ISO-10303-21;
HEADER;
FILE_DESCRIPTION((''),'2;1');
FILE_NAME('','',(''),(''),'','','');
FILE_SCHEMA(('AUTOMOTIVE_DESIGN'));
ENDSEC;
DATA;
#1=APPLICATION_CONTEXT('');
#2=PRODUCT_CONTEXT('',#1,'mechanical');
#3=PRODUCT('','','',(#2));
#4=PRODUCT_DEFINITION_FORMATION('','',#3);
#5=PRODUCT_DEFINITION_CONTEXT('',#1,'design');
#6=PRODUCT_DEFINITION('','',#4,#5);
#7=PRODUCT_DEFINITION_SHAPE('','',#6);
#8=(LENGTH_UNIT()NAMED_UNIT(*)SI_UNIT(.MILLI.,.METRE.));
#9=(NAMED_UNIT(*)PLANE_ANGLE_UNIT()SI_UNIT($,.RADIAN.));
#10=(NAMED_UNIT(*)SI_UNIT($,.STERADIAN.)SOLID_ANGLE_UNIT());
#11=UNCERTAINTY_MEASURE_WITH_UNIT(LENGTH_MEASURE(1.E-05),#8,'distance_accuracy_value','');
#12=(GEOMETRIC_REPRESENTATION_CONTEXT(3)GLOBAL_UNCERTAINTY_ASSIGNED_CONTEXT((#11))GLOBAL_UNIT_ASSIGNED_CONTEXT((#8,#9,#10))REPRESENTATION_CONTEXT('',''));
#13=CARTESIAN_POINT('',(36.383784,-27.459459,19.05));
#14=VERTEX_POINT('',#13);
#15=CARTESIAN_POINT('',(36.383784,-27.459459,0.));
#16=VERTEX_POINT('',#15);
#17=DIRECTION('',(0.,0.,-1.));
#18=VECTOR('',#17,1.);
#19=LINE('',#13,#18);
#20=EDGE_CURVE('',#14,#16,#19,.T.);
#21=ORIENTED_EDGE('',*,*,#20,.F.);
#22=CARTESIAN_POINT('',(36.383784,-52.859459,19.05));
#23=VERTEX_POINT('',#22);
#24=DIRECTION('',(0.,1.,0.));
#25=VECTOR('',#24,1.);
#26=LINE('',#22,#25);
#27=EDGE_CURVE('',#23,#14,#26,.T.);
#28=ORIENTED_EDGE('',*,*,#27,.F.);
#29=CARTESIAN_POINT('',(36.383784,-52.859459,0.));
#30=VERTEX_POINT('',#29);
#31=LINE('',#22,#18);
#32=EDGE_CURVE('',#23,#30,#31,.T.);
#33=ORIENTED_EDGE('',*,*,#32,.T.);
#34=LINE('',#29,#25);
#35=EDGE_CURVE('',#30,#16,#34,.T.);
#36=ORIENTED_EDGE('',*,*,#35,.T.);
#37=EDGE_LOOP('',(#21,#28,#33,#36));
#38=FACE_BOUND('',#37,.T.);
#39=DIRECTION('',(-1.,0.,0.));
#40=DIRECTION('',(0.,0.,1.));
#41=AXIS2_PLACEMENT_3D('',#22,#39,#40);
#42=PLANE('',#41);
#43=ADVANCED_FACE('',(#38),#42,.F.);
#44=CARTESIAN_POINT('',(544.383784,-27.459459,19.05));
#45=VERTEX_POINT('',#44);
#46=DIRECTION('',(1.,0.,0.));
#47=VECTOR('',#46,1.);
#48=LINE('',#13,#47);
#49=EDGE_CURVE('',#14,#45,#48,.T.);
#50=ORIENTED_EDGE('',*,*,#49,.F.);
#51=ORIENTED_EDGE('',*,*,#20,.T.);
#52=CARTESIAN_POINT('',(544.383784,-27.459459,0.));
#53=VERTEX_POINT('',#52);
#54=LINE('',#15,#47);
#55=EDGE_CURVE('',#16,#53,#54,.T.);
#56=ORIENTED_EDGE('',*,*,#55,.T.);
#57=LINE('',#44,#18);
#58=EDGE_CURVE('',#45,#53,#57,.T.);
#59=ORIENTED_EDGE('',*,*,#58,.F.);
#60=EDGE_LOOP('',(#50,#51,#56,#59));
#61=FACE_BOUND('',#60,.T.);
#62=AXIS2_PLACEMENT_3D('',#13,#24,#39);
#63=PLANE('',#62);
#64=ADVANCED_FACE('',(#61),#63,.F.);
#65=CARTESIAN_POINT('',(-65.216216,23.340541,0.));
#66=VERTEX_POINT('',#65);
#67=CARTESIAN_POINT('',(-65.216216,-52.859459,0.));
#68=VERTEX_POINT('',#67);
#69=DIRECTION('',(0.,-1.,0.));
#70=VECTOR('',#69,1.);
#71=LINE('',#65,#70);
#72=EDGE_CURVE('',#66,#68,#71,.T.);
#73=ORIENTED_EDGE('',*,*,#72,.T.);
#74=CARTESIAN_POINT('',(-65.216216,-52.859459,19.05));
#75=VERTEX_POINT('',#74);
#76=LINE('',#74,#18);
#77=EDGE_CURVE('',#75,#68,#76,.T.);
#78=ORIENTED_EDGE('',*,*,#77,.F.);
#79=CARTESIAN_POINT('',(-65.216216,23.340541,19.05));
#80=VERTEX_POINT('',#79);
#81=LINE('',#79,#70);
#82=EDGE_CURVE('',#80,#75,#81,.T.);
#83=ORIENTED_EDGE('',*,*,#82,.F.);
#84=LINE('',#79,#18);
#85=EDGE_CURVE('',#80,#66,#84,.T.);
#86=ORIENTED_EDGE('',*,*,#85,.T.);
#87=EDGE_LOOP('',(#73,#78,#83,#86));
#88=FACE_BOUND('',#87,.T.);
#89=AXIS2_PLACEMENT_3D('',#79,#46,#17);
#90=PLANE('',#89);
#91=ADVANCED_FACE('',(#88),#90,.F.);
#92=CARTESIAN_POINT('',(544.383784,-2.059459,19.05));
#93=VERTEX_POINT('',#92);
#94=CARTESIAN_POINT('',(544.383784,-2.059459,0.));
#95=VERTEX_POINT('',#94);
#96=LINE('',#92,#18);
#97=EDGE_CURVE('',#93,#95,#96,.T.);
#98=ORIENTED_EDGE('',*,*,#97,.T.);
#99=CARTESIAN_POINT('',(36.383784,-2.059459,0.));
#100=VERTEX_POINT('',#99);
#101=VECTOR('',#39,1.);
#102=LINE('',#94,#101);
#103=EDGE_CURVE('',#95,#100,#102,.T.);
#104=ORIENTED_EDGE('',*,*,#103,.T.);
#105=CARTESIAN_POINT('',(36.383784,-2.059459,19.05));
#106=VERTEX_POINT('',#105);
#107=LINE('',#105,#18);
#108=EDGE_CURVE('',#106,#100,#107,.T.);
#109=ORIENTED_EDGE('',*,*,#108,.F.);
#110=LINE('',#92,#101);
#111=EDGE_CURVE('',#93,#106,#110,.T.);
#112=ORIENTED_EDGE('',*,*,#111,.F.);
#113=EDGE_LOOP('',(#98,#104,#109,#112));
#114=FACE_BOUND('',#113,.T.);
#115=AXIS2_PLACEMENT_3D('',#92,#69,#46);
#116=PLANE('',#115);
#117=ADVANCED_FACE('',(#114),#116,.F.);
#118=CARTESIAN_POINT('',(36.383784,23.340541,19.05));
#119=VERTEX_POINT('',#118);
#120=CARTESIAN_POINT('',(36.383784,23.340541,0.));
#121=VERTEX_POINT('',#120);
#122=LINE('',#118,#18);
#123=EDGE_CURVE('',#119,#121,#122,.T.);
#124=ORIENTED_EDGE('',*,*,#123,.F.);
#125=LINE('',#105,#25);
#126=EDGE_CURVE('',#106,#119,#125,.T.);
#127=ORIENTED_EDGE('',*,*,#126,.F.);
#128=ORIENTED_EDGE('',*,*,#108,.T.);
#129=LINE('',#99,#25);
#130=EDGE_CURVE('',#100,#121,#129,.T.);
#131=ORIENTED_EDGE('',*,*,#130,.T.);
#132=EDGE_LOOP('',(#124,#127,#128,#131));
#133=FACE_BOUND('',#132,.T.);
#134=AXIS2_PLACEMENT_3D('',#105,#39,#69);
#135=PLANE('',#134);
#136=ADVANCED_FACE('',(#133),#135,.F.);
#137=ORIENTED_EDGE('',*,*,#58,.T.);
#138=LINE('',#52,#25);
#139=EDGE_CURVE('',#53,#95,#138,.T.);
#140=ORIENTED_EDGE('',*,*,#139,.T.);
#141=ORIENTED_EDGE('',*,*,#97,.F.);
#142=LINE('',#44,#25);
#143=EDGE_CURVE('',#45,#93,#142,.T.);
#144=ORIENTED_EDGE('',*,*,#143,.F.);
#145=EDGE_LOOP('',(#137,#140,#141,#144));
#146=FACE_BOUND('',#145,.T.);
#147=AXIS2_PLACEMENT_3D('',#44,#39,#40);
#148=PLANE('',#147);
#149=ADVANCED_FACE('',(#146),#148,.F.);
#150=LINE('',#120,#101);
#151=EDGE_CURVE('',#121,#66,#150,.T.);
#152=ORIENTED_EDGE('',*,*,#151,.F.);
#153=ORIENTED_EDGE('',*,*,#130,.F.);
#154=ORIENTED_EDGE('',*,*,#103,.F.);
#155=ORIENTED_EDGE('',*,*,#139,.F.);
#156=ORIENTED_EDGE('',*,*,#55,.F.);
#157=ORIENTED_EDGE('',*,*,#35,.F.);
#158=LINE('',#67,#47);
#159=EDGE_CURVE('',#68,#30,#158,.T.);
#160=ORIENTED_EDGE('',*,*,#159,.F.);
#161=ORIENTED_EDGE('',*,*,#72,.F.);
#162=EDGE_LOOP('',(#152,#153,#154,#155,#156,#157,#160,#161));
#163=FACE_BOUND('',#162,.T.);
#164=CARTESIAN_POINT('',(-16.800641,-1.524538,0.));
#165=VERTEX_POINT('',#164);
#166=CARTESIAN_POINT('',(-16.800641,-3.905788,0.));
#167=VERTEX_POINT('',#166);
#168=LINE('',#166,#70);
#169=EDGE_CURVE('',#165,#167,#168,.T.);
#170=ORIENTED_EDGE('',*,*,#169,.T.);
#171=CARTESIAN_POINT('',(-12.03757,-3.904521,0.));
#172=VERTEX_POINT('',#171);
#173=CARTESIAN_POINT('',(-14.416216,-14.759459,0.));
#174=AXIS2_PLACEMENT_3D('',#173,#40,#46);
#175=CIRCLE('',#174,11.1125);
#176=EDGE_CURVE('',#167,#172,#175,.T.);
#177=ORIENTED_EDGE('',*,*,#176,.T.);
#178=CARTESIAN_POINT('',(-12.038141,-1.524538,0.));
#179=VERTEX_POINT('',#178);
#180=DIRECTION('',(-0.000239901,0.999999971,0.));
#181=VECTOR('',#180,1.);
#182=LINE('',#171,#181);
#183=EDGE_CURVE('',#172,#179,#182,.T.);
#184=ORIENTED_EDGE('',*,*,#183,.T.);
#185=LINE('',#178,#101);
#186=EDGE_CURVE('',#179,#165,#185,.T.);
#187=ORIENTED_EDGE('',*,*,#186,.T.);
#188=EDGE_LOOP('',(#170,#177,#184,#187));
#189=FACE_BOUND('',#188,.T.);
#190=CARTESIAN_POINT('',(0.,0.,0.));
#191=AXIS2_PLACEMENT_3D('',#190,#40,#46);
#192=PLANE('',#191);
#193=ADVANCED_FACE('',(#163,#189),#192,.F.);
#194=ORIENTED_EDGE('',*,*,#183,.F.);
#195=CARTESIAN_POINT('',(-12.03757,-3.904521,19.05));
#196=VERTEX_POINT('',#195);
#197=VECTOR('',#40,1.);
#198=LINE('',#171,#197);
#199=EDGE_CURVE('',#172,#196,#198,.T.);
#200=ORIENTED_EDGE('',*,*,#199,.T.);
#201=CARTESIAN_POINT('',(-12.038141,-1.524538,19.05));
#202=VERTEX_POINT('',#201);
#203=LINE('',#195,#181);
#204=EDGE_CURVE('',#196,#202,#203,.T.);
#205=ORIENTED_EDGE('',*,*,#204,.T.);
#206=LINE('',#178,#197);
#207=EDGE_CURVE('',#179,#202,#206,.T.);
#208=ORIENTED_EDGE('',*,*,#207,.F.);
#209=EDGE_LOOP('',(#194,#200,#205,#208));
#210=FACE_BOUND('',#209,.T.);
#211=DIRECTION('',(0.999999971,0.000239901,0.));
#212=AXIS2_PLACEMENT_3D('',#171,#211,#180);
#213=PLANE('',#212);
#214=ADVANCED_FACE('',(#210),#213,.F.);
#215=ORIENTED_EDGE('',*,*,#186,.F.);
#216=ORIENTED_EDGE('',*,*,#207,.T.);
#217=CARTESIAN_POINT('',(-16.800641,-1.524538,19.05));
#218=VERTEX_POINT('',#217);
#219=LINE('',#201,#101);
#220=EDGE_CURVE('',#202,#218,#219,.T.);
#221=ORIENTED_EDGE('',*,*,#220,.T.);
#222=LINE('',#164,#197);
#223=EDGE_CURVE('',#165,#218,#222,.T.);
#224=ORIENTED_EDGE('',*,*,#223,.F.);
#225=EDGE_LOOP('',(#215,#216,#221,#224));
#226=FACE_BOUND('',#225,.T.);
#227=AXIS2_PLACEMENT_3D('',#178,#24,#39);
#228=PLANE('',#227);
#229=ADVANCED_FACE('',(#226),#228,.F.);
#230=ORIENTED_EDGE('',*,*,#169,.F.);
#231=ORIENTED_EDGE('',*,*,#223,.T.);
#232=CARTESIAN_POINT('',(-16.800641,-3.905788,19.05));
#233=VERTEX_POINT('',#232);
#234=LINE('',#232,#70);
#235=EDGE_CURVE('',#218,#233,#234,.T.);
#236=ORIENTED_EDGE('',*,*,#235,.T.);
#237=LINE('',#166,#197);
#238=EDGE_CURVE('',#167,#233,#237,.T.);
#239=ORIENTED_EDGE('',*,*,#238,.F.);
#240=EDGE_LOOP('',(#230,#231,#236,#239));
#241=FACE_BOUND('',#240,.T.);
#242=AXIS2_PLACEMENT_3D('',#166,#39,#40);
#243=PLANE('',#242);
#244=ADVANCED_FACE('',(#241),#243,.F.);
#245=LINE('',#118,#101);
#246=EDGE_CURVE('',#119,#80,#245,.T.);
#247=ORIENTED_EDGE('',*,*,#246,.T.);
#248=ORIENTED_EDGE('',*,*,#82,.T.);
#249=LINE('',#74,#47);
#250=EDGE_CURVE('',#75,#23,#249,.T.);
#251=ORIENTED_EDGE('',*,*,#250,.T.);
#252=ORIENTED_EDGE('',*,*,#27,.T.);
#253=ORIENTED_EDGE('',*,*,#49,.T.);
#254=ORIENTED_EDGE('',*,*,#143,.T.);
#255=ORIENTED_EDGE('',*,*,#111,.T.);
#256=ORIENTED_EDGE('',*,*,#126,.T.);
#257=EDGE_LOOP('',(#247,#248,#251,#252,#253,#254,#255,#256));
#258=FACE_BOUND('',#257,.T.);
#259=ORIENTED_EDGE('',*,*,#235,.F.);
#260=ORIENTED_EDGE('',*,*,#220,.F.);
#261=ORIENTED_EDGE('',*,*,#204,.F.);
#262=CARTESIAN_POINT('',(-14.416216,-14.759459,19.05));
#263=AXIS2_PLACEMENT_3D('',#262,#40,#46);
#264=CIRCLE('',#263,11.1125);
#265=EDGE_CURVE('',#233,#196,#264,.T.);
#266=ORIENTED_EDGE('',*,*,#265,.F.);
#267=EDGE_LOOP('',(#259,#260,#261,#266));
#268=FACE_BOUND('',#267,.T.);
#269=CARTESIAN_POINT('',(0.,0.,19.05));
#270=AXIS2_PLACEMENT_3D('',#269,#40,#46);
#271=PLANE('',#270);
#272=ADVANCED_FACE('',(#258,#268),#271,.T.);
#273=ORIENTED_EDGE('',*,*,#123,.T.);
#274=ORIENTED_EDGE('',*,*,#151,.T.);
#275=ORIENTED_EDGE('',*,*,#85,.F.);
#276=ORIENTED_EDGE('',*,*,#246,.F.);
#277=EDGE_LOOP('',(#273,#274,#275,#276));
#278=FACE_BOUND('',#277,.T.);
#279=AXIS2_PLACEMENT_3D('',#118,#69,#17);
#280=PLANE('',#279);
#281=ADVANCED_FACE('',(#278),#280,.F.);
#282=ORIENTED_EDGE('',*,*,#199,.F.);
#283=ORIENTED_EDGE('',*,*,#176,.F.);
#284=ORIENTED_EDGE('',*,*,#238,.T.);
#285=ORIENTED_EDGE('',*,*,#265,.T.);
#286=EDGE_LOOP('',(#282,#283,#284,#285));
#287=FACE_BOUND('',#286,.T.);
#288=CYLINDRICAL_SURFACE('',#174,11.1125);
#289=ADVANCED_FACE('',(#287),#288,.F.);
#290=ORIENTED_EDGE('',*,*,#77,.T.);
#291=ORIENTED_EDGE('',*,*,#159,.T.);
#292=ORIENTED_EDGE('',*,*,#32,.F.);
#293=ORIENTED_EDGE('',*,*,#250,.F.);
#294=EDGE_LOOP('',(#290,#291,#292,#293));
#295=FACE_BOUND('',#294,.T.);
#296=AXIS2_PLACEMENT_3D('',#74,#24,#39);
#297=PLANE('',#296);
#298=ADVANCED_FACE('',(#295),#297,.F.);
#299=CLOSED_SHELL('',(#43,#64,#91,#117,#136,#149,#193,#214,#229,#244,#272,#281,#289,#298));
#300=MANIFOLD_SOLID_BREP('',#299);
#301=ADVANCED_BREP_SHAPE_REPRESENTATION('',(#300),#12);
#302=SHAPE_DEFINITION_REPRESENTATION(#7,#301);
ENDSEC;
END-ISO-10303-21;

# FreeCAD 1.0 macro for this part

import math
import FreeCAD as App
import Part
import Sketcher
from FreeCAD import Vector
Q = App.Units.Quantity


def add_polygon(sketch, points):
    """Adds a closed chain of lines whose ends are joined by coincident constraints."""
    first, n = sketch.GeometryCount, len(points)
    for a, b in zip(points, points[1:] + points[:1]):
        sketch.addGeometry(Part.LineSegment(App.Vector(*a, 0), App.Vector(*b, 0)), False)
    for i in range(n):
        sketch.addConstraint(Sketcher.Constraint("Coincident", first + i, 2, first + (i + 1) % n, 1))

doc = App.newDocument("Part")
body = doc.addObject("PartDesign::Body", "Body")

sketch1 = doc.addObject("Sketcher::SketchObject", "Sketch")
body.addObject(sketch1)
sketch1.AttachmentSupport = (doc.XY_Plane, [""])
sketch1.MapMode = "FlatFace"
add_polygon(sketch1, [(-65.216216, 23.340541), (-65.216216, -52.859459), (36.383784, -52.859459), (36.383784, -27.459459), (544.383784, -27.459459), (544.383784, -2.059459), (36.383784, -2.059459), (36.383784, 23.340541)])
sketch1.addConstraint([
    Sketcher.Constraint("Vertical", 0),
    Sketcher.Constraint("Horizontal", 1),
    Sketcher.Constraint("Vertical", 2),
    Sketcher.Constraint("Horizontal", 3),
    Sketcher.Constraint("Vertical", 4),
    Sketcher.Constraint("Horizontal", 5),
    Sketcher.Constraint("Vertical", 6),
    Sketcher.Constraint("Horizontal", 7),
    Sketcher.Constraint("Vertical", 2, 2, 5, 2),
    Sketcher.Constraint("Equal", 2, 4),
    Sketcher.Constraint("Equal", 4, 6),
    Sketcher.Constraint("DistanceX", 1, 1, 1, 2, Q("4 in")),
    Sketcher.Constraint("DistanceX", 3, 1, 3, 2, Q("20 in")),
    Sketcher.Constraint("DistanceY", 0, 2, 0, 1, Q("3 in")),
    Sketcher.Constraint("DistanceY", 0, 2, -1, 1, 52.859459),
    Sketcher.Constraint("DistanceX", 0, 2, -1, 1, 65.216216),
])
pad1 = doc.addObject("PartDesign::Pad", "Pad")
body.addObject(pad1)
pad1.Profile = sketch1
pad1.Length = Q("0.75 in")

sketch2 = doc.addObject("Sketcher::SketchObject", "Sketch001")
body.addObject(sketch2)
sketch2.AttachmentSupport = (doc.XY_Plane, [""])
sketch2.MapMode = "FlatFace"
sketch2.AttachmentOffset = App.Placement(Vector(0, 0, 0.75 * 25.4), App.Rotation())
sketch2.addGeometry([
    Part.LineSegment(Vector(-12.03757, -3.904521, 0), Vector(-12.038141, -1.524538, 0)),
    Part.LineSegment(Vector(-12.038141, -1.524538, 0), Vector(-16.800641, -1.524538, 0)),
    Part.LineSegment(Vector(-16.800641, -1.524538, 0), Vector(-16.800641, -3.905788, 0)),
    Part.ArcOfCircle(Part.Circle(Vector(-14.416216, -14.759459, 0), Vector(0, 0, 1), 11.1125), math.radians(102.390385), math.radians(437.64012)),
], False)
sketch2.addConstraint([
    Sketcher.Constraint("Coincident", 0, 2, 1, 1),
    Sketcher.Constraint("Coincident", 1, 2, 2, 1),
    Sketcher.Constraint("Coincident", 2, 2, 3, 1),
    Sketcher.Constraint("Coincident", 3, 2, 0, 1),
    Sketcher.Constraint("Horizontal", 1),
    Sketcher.Constraint("Vertical", 2),
    Sketcher.Constraint("Radius", 3, Q("0.4375 in")),
    Sketcher.Constraint("DistanceX", 1, 2, 1, 1, Q("0.1875 in")),
    Sketcher.Constraint("DistanceY", 2, 2, 2, 1, Q("0.09375 in")),
    Sketcher.Constraint("Distance", 0, Q("0.0937001 in")),
    Sketcher.Constraint("DistanceY", 3, 3, -1, 1, 14.759459),
    Sketcher.Constraint("DistanceX", 0, 2, -1, 1, 12.038141),
    Sketcher.Constraint("DistanceY", 0, 2, -1, 1, 1.524538),
])
pocket1 = doc.addObject("PartDesign::Pocket", "Pocket")
body.addObject(pocket1)
pocket1.Profile = sketch2
pocket1.Type = "ThroughAll"

doc.recompute()
